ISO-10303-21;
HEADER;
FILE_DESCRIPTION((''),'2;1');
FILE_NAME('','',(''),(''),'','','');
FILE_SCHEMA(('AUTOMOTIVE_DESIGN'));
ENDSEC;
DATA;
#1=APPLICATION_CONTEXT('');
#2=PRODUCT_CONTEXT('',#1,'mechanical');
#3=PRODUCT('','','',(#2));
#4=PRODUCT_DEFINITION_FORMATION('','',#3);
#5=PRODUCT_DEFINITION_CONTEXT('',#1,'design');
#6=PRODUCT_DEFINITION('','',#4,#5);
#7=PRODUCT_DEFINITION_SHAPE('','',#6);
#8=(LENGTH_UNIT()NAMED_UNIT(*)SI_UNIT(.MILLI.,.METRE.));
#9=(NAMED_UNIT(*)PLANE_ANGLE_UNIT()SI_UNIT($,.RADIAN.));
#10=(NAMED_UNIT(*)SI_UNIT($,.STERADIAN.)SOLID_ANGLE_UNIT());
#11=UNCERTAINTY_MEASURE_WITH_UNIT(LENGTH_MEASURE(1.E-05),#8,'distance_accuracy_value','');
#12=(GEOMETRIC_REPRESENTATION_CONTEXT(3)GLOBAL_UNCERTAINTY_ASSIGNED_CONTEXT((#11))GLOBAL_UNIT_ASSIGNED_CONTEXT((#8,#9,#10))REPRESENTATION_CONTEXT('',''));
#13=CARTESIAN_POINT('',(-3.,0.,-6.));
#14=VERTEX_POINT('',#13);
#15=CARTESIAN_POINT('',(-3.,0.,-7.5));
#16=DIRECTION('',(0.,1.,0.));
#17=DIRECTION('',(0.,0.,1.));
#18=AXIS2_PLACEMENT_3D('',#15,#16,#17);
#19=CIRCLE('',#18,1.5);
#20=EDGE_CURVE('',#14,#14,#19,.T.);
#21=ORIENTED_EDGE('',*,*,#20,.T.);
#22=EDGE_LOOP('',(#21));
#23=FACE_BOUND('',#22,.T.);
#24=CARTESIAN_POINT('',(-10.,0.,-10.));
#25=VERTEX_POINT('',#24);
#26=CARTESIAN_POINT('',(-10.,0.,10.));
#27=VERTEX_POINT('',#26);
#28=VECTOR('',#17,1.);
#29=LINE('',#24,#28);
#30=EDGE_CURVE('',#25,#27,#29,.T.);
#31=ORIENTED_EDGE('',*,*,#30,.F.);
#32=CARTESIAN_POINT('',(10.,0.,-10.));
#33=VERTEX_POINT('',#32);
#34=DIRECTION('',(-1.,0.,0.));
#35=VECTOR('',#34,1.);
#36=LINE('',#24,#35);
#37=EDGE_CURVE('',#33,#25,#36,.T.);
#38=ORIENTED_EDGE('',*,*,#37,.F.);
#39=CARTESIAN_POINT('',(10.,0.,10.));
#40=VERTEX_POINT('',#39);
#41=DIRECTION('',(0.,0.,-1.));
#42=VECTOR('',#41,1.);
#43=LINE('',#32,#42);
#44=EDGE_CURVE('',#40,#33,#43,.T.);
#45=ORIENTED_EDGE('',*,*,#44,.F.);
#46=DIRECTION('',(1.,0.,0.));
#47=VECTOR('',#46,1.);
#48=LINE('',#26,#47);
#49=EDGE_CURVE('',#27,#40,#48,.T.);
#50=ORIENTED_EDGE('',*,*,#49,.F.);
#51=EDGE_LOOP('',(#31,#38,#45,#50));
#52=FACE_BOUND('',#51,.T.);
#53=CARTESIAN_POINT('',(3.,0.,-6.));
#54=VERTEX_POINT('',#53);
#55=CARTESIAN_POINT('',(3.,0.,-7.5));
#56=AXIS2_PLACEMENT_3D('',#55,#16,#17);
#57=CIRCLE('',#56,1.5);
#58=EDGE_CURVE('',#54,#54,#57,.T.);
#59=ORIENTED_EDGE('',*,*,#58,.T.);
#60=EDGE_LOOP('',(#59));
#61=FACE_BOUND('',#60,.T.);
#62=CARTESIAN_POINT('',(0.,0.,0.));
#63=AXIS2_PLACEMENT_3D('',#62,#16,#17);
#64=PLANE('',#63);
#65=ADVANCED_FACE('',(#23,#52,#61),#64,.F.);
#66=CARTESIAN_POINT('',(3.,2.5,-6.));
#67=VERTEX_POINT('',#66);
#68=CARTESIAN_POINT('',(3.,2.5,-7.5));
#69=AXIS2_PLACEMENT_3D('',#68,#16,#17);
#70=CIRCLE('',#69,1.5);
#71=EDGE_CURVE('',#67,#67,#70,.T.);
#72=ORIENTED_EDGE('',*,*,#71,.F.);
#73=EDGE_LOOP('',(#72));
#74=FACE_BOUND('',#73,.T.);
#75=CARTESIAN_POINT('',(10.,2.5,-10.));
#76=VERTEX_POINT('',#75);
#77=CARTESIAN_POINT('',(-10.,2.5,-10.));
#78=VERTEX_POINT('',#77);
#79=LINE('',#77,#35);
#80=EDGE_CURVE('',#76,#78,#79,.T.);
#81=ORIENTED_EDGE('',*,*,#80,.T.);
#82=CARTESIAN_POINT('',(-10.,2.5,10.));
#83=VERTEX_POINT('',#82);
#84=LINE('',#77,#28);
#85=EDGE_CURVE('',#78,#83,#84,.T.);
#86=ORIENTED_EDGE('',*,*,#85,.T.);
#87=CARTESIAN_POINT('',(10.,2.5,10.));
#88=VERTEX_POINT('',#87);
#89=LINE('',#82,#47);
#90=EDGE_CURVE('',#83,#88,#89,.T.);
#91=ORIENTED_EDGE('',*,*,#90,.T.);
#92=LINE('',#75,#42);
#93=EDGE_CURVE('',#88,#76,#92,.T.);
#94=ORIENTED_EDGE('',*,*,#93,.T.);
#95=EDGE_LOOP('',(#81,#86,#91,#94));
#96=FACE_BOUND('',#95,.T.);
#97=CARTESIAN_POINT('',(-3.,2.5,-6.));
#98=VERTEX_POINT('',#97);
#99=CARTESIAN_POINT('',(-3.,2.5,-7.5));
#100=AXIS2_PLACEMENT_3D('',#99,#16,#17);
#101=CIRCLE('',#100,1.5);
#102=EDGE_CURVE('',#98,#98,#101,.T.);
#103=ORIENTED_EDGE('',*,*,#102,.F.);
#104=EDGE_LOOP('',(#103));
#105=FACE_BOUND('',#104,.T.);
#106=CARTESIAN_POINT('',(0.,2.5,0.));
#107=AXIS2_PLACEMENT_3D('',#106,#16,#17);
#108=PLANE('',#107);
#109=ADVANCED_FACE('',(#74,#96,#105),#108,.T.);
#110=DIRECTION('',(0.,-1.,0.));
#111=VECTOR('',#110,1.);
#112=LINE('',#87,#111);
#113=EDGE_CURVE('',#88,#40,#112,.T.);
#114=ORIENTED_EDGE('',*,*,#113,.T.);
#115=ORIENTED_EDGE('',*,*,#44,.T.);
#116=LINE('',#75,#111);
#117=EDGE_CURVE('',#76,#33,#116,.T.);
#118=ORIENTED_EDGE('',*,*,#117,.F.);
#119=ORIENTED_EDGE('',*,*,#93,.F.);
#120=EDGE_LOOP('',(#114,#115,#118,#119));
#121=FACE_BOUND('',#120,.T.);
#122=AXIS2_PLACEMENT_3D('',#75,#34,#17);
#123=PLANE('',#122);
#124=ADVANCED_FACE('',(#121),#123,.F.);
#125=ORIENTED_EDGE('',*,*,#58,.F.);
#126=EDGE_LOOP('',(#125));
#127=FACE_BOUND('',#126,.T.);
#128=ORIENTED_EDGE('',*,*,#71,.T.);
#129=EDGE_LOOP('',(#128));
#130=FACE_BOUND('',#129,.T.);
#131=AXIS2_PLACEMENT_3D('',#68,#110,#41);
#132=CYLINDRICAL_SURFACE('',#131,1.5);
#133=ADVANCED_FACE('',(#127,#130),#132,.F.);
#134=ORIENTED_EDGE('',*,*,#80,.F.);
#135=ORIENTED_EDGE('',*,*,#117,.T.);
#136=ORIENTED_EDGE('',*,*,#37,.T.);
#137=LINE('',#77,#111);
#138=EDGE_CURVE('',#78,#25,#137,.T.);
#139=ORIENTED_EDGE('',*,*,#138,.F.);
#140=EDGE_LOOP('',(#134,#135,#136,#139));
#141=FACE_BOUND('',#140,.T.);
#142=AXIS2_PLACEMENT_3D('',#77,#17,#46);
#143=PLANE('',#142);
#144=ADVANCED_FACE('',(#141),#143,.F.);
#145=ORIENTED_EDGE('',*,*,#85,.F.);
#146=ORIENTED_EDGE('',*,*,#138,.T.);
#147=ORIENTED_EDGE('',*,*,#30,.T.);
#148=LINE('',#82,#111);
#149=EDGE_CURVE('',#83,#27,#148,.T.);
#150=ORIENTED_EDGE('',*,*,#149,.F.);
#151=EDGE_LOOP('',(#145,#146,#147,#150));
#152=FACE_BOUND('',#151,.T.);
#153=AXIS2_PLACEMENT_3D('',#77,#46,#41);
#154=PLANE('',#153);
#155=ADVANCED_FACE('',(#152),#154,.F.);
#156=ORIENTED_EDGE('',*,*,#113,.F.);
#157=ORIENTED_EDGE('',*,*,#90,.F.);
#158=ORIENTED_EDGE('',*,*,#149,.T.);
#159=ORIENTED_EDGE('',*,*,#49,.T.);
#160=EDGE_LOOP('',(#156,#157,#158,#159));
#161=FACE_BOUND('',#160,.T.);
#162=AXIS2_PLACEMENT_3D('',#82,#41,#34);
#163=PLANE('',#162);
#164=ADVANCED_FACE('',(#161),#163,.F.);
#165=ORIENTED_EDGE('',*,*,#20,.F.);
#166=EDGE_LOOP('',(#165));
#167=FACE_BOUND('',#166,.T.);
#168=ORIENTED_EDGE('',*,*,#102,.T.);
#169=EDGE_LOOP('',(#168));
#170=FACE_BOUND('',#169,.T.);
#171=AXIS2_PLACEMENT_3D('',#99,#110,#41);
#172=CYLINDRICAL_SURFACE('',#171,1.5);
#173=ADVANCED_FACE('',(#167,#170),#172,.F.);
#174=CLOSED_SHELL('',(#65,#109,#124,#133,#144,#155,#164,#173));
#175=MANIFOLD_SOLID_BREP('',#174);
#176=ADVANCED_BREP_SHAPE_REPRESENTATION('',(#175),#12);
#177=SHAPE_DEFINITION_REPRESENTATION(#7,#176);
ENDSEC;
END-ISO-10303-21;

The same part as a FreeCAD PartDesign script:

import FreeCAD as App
import Part
import Sketcher

V = App.Vector
Q = App.Units.Quantity

doc = App.newDocument("Part")
body = doc.addObject("PartDesign::Body", "Body")

sketch1 = body.newObject("Sketcher::SketchObject", "Sketch")
sketch1.AttachmentSupport = (doc.getObject("XZ_Plane"), [""])
sketch1.MapMode = "FlatFace"
sketch1.addGeometry([
    Part.LineSegment(V(-10, -10, 0), V(-10, 10, 0)),
    Part.LineSegment(V(-10, 10, 0), V(10, 10, 0)),
    Part.LineSegment(V(10, 10, 0), V(10, -10, 0)),
    Part.LineSegment(V(10, -10, 0), V(-10, -10, 0)),
    Part.Circle(V(-3, -7.5, 0), V(0, 0, 1), 1.5),
    Part.Circle(V(3, -7.5, 0), V(0, 0, 1), 1.5),
], False)
sketch1.addConstraint([
    Sketcher.Constraint("Coincident", 0, 2, 1, 1),
    Sketcher.Constraint("Coincident", 1, 2, 2, 1),
    Sketcher.Constraint("Coincident", 2, 2, 3, 1),
    Sketcher.Constraint("Coincident", 3, 2, 0, 1),
    Sketcher.Constraint("Vertical", 0),
    Sketcher.Constraint("Horizontal", 1),
    Sketcher.Constraint("Vertical", 2),
    Sketcher.Constraint("Horizontal", 3),
    Sketcher.Constraint("Equal", 4, 5),
    Sketcher.Constraint("Symmetric", 0, 2, 2, 2, -1, 1),
    Sketcher.Constraint("Symmetric", 4, 3, 5, 3, -2),
    Sketcher.Constraint("Equal", 3, 0),
    Sketcher.Constraint("Diameter", 4, Q("3 mm")),
    Sketcher.Constraint("DistanceX", 1, 1, 1, 2, Q("20 mm")),
    Sketcher.Constraint("DistanceX", 4, 3, -1, 1, Q("3 mm")),
    Sketcher.Constraint("DistanceY", 4, 3, -1, 1, Q("7.5 mm")),
])
pad1 = body.newObject("PartDesign::Pad", "Pad")
pad1.Profile = sketch1
pad1.Length = 2.5
pad1.Reversed = True

doc.recompute()
